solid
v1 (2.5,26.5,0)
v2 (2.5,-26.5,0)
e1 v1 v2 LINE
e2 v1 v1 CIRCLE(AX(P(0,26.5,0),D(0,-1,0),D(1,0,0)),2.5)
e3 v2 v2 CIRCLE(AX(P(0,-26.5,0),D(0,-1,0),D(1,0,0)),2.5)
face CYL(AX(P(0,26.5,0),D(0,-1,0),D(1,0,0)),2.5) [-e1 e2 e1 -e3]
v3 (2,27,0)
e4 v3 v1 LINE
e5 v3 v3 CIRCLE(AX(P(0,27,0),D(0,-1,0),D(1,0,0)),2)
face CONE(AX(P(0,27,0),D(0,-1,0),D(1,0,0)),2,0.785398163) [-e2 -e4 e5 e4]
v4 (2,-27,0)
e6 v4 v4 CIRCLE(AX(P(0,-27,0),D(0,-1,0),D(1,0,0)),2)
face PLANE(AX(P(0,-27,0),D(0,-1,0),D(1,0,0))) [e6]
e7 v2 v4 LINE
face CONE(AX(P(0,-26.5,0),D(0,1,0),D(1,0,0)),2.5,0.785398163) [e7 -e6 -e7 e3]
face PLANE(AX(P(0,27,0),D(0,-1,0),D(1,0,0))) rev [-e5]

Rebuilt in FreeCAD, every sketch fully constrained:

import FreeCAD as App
import Part
import Sketcher
from FreeCAD import Vector
Q = App.Units.Quantity

doc = App.newDocument("Part")
body = doc.addObject("PartDesign::Body", "Body")

sketch1 = body.newObject("Sketcher::SketchObject", "Sketch")
sketch1.AttachmentSupport = (doc.getObject("XY_Plane"), [""])
sketch1.MapMode = "FlatFace"
sketch1.addGeometry(Part.LineSegment(Vector(0, 27, 0), Vector(0, -27, 0)), False)
sketch1.addGeometry(Part.LineSegment(Vector(0, -27, 0), Vector(2, -27, 0)), False)
sketch1.addGeometry(Part.LineSegment(Vector(2, -27, 0), Vector(2.5, -26.5, 0)), False)
sketch1.addGeometry(Part.LineSegment(Vector(2.5, -26.5, 0), Vector(2.5, 26.5, 0)), False)
sketch1.addGeometry(Part.LineSegment(Vector(2.5, 26.5, 0), Vector(2, 27, 0)), False)
sketch1.addGeometry(Part.LineSegment(Vector(2, 27, 0), Vector(0, 27, 0)), False)
sketch1.addConstraint(Sketcher.Constraint("Coincident", 0, 2, 1, 1))
sketch1.addConstraint(Sketcher.Constraint("Coincident", 1, 2, 2, 1))
sketch1.addConstraint(Sketcher.Constraint("Coincident", 2, 2, 3, 1))
sketch1.addConstraint(Sketcher.Constraint("Coincident", 3, 2, 4, 1))
sketch1.addConstraint(Sketcher.Constraint("Coincident", 4, 2, 5, 1))
sketch1.addConstraint(Sketcher.Constraint("Coincident", 5, 2, 0, 1))
sketch1.addConstraint(Sketcher.Constraint("Vertical", 0))
sketch1.addConstraint(Sketcher.Constraint("Horizontal", 1))
sketch1.addConstraint(Sketcher.Constraint("Vertical", 3))
sketch1.addConstraint(Sketcher.Constraint("Horizontal", 5))
sketch1.addConstraint(Sketcher.Constraint("Symmetric", 0, 2, 5, 2, -1, 1))
sketch1.addConstraint(Sketcher.Constraint("Perpendicular", 2, 4))
sketch1.addConstraint(Sketcher.Constraint("Vertical", 1, 2, 4, 2))
sketch1.addConstraint(Sketcher.Constraint("Equal", 2, 4))
sketch1.addConstraint(Sketcher.Constraint("DistanceX", 1, 1, 1, 2, Q("2 mm")))
sketch1.addConstraint(Sketcher.Constraint("DistanceY", 0, 2, 0, 1, Q("54 mm")))
sketch1.addConstraint(Sketcher.Constraint("DistanceY", 3, 1, 3, 2, Q("53 mm")))
revolution = body.newObject("PartDesign::Revolution", "Revolution")
revolution.Profile = sketch1
revolution.ReferenceAxis = (sketch1, ["V_Axis"])
revolution.Angle = 360

doc.recompute()
